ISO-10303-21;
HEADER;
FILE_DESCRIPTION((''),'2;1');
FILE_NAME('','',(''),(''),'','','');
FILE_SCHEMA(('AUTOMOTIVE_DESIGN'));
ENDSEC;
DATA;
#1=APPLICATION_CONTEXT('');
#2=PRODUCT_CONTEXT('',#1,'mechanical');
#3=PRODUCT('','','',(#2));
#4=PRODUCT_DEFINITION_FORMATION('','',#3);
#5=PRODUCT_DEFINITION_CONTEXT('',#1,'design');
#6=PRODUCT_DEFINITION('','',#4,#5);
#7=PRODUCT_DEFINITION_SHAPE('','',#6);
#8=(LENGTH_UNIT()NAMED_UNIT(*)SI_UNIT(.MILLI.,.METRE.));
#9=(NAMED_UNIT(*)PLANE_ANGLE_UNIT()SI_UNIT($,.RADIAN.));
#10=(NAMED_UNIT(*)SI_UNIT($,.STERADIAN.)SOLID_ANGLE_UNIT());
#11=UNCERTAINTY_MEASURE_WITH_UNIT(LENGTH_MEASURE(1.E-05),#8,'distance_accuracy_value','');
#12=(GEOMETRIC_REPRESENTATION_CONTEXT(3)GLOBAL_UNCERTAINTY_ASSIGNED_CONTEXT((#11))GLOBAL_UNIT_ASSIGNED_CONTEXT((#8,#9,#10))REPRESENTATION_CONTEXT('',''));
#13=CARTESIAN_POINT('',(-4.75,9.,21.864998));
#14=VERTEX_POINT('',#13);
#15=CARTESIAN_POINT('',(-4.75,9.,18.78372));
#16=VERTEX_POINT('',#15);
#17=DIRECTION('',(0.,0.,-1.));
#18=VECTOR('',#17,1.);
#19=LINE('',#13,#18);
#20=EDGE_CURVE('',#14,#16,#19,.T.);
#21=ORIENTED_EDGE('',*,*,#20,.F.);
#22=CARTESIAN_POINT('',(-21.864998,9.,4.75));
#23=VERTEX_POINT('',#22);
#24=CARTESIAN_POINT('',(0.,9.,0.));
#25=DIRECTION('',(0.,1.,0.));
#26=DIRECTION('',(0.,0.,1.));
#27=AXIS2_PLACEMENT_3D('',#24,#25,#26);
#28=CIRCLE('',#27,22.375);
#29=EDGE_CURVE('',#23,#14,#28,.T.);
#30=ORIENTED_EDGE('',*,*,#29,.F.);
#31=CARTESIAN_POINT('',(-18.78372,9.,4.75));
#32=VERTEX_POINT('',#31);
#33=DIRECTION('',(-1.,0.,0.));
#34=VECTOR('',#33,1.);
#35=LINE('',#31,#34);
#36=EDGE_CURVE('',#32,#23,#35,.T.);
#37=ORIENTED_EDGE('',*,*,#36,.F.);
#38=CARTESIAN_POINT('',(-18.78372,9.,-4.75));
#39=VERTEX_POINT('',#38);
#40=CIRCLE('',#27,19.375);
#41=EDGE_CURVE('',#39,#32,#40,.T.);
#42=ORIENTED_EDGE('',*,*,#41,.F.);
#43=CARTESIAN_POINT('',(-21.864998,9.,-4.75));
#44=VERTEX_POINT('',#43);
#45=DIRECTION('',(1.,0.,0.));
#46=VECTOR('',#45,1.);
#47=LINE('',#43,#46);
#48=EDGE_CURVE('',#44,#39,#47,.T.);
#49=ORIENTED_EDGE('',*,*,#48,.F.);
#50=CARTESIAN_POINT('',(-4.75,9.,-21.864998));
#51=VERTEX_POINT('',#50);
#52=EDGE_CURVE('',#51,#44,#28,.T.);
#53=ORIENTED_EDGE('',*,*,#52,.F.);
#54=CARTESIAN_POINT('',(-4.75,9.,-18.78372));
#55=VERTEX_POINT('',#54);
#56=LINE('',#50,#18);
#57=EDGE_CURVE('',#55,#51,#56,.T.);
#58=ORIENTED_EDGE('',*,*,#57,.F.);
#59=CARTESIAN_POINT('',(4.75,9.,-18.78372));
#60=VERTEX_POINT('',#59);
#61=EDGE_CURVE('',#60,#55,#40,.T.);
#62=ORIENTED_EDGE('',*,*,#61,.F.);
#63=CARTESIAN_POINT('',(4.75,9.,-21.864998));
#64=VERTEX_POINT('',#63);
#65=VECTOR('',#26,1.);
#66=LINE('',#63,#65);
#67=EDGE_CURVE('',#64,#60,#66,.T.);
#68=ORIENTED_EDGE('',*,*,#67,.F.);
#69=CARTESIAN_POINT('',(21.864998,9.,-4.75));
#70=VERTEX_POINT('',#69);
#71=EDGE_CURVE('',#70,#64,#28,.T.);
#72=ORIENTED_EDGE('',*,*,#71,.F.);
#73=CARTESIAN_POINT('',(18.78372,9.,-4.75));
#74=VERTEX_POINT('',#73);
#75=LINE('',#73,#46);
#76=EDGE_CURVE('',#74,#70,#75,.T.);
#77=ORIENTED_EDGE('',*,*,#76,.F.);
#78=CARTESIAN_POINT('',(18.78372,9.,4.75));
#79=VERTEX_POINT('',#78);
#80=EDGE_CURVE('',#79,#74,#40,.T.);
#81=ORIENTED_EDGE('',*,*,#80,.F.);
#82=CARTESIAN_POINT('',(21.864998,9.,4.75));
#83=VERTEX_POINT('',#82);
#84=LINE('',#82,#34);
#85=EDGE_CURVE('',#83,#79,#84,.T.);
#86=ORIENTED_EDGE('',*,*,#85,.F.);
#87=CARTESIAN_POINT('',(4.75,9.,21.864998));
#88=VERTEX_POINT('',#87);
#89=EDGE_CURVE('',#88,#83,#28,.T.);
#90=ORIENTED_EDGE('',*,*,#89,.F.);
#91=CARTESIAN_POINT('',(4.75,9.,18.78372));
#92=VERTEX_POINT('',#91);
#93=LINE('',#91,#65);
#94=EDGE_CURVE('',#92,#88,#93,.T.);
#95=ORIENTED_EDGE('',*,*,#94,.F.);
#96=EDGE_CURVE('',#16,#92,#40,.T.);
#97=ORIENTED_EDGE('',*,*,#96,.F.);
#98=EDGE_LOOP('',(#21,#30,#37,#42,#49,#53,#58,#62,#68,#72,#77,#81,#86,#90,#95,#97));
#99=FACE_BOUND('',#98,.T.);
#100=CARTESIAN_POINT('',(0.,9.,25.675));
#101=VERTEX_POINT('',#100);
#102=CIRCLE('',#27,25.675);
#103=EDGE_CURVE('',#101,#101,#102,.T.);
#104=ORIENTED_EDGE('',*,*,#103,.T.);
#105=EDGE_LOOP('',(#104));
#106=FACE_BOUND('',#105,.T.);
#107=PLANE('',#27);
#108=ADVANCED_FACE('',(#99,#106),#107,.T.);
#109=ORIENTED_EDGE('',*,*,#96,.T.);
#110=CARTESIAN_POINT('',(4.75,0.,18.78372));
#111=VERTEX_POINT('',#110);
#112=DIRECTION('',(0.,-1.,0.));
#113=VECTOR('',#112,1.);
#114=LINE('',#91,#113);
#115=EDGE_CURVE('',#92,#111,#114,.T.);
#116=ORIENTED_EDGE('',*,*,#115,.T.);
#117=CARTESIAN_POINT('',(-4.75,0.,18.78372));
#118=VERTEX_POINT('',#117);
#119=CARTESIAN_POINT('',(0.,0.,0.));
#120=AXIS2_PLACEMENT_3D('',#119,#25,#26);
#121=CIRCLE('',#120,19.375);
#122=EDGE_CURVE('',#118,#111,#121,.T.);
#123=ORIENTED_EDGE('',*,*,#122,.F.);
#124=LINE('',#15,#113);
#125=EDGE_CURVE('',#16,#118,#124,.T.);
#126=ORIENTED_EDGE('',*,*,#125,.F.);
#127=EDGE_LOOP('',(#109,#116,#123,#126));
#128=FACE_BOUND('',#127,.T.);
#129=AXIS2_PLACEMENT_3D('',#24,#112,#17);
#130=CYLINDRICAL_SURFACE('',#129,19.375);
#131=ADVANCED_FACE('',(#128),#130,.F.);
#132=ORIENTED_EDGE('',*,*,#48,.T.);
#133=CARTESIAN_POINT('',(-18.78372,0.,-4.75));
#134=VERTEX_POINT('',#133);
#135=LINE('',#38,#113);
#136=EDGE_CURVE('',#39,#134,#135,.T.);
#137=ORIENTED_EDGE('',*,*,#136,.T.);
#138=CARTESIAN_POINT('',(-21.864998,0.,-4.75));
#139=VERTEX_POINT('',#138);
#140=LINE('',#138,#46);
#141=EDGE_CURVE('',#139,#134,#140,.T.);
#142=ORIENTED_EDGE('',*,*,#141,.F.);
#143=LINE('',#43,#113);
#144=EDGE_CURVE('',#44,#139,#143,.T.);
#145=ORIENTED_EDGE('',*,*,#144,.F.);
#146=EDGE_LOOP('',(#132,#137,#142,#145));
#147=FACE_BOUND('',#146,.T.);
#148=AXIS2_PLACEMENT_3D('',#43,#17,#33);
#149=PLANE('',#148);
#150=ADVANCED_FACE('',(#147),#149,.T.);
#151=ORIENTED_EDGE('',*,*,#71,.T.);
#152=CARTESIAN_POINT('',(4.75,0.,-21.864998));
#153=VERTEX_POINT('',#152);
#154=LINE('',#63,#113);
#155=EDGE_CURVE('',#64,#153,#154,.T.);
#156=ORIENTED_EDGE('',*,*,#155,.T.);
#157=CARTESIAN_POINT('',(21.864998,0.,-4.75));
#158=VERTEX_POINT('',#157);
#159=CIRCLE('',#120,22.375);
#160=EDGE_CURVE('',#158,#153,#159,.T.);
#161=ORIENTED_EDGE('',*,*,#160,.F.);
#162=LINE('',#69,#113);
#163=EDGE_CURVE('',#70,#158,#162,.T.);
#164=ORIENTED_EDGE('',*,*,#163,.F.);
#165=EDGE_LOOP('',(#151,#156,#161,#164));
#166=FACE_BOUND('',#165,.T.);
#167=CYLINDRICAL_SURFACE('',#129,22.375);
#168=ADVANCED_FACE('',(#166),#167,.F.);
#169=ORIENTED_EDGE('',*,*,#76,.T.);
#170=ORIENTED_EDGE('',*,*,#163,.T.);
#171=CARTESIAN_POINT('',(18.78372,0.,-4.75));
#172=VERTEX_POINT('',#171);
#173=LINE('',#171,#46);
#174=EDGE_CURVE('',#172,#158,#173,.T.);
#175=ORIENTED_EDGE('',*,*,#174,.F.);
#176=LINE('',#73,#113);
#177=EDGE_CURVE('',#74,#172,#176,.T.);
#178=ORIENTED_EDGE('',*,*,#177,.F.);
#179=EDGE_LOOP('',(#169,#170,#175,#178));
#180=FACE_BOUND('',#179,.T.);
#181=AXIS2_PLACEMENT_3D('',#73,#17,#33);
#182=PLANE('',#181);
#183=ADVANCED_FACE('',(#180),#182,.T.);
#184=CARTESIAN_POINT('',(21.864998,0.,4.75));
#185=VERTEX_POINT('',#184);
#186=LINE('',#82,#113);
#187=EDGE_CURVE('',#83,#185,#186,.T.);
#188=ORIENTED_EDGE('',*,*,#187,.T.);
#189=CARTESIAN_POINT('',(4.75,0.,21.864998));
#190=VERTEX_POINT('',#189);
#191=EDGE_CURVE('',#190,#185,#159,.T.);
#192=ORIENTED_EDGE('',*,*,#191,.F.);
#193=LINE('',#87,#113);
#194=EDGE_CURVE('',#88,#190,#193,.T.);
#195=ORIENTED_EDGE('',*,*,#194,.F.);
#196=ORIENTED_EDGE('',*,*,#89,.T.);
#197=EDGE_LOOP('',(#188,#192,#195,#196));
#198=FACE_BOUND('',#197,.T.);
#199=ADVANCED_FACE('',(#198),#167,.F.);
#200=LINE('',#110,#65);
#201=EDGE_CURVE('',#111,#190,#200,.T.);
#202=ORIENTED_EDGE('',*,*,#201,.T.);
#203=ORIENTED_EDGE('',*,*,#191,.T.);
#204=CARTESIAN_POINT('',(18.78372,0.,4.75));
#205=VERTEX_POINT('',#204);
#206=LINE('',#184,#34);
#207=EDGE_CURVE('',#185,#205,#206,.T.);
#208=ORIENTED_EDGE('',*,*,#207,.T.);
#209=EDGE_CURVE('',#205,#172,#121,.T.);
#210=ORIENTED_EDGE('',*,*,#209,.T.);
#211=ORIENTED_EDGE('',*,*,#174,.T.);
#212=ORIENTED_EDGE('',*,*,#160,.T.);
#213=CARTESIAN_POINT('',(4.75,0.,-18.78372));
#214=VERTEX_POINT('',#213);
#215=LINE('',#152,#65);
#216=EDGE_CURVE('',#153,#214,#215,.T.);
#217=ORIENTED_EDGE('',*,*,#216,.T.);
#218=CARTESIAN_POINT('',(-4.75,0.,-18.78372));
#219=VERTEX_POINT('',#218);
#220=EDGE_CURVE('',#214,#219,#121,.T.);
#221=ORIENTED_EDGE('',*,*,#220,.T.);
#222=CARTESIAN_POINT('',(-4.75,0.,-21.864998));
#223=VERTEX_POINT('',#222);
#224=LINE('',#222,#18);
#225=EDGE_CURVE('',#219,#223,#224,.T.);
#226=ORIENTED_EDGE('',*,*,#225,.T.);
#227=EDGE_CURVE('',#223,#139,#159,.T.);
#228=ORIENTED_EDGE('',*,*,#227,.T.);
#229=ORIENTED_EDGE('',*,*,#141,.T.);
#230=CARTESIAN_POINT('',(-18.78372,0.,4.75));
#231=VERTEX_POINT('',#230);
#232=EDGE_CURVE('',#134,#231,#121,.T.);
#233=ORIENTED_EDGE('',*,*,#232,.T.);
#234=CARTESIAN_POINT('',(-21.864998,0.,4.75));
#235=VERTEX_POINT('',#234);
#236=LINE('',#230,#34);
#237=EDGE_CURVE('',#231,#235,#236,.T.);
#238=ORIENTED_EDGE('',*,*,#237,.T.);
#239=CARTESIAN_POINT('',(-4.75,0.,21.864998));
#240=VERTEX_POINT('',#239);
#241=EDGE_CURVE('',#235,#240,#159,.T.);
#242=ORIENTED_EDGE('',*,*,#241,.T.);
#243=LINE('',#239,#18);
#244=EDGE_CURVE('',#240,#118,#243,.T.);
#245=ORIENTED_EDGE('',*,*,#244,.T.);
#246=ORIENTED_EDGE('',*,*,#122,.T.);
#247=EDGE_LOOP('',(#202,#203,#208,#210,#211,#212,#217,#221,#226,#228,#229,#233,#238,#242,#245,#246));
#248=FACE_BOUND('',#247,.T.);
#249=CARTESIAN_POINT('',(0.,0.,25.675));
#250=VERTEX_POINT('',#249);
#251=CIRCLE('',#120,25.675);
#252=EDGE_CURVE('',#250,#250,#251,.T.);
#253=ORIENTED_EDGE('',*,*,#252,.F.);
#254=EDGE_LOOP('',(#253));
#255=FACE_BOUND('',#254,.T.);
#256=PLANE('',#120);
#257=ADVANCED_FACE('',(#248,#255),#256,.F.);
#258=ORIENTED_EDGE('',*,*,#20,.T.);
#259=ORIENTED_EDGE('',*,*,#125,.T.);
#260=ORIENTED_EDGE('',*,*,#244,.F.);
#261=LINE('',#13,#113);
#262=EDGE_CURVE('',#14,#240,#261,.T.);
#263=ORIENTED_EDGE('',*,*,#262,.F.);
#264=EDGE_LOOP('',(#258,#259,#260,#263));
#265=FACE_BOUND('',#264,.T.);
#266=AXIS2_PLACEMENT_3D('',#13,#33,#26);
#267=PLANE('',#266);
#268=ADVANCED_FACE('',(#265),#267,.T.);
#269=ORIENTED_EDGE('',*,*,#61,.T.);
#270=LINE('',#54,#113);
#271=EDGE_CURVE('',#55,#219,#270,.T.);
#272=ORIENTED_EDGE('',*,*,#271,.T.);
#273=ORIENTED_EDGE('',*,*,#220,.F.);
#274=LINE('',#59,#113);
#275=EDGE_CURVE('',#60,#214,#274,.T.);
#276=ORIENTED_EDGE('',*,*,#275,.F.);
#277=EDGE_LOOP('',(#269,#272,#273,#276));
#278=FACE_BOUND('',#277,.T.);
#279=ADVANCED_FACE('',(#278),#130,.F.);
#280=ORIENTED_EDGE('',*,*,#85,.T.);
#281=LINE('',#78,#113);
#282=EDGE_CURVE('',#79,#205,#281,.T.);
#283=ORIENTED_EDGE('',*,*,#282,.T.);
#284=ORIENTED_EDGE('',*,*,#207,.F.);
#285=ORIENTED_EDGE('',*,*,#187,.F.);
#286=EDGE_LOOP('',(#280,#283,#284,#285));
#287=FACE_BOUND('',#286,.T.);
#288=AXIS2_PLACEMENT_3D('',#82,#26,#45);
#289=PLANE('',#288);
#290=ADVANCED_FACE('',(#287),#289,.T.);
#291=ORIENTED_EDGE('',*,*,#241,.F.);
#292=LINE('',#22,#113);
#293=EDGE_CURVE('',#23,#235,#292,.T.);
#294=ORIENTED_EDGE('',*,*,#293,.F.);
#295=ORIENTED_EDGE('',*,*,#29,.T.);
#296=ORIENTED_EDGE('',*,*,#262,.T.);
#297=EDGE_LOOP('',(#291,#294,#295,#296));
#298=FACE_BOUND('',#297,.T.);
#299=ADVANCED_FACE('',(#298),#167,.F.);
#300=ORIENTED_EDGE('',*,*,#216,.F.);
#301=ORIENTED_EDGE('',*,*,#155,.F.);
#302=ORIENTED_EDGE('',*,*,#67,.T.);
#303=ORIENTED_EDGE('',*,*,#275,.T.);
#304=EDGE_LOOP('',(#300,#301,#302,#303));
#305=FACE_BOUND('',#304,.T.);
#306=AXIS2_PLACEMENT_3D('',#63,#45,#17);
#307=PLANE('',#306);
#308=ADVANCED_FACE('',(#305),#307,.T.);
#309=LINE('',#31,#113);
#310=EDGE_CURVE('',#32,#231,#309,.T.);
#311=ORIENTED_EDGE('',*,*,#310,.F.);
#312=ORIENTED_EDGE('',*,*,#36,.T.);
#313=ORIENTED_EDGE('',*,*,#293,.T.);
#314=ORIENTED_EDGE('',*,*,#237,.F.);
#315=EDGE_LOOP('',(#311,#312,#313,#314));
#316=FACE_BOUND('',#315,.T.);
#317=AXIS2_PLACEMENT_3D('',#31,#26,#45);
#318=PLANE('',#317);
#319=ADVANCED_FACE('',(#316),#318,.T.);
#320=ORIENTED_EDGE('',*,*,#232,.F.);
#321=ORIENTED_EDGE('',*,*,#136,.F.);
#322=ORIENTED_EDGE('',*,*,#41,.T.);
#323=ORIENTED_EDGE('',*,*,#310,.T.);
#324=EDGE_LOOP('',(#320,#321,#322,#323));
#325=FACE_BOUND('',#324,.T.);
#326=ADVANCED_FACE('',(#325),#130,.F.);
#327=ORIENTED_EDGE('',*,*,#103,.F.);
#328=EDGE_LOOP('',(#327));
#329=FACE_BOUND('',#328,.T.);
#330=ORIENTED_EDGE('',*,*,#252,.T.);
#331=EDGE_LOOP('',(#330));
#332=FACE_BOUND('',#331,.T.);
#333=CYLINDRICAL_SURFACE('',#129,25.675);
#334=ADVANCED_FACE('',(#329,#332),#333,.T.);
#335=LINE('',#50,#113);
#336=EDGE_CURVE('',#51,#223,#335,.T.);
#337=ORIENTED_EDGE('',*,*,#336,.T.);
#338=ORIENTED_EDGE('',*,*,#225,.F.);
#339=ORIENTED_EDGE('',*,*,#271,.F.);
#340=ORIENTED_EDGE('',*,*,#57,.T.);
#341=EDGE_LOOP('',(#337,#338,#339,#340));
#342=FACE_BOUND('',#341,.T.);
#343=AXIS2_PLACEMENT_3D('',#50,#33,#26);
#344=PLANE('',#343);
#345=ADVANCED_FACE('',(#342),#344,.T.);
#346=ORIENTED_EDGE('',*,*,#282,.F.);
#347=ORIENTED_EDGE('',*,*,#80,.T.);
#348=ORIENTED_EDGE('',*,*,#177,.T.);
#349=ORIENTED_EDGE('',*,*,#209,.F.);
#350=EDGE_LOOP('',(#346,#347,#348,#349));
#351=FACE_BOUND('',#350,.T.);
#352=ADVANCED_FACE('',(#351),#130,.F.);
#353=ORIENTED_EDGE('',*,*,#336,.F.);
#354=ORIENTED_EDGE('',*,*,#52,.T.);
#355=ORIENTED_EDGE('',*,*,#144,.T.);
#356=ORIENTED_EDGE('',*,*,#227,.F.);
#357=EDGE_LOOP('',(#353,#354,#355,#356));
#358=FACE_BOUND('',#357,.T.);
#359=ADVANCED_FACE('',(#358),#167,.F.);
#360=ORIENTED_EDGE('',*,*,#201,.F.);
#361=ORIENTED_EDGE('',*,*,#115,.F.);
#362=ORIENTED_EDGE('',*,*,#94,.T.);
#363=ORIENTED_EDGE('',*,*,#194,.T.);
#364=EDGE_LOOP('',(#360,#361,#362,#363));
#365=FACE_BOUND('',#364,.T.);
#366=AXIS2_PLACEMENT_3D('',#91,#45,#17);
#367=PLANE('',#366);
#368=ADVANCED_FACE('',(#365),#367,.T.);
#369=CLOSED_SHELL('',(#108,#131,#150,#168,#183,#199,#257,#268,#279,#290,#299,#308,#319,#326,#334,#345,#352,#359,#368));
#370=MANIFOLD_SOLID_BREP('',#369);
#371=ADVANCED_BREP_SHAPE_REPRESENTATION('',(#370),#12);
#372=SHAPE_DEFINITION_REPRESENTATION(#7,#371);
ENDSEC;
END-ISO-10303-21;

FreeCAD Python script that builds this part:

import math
import FreeCAD as App
import Part
import Sketcher
from FreeCAD import Vector
Q = App.Units.Quantity

doc = App.newDocument("Part")
body = doc.addObject("PartDesign::Body", "Body")

# Sketch on XZ plane
sketch1 = body.newObject("Sketcher::SketchObject", "Sketch")
sketch1.AttachmentSupport = (doc.getObject("XZ_Plane"), [""])
sketch1.MapMode = "FlatFace"
sketch1.addGeometry(Part.Circle(Vector(0, 0, 0), Vector(0, 0, 1), 25.675), False)
sketch1.addGeometry(Part.ArcOfCircle(Part.Circle(Vector(0, 0, 0), Vector(0, 0, 1), 22.375), math.radians(-167.743385), math.radians(-102.256615)), False)
sketch1.addGeometry(Part.LineSegment(Vector(-4.75, -21.864998, 0), Vector(-4.75, -18.78372, 0)), False)
sketch1.addGeometry(Part.ArcOfCircle(Part.Circle(Vector(0, 0, 0), Vector(0, 0, 1), 19.375), math.radians(-104.191366), math.radians(-75.808634)), False)
sketch1.addGeometry(Part.LineSegment(Vector(4.75, -18.78372, 0), Vector(4.75, -21.864998, 0)), False)
sketch1.addGeometry(Part.ArcOfCircle(Part.Circle(Vector(0, 0, 0), Vector(0, 0, 1), 22.375), math.radians(-77.743385), math.radians(-12.256615)), False)
sketch1.addGeometry(Part.LineSegment(Vector(21.864998, -4.75, 0), Vector(18.78372, -4.75, 0)), False)
sketch1.addGeometry(Part.ArcOfCircle(Part.Circle(Vector(0, 0, 0), Vector(0, 0, 1), 19.375), math.radians(-14.191366), math.radians(14.191366)), False)
sketch1.addGeometry(Part.LineSegment(Vector(18.78372, 4.75, 0), Vector(21.864998, 4.75, 0)), False)
sketch1.addGeometry(Part.ArcOfCircle(Part.Circle(Vector(0, 0, 0), Vector(0, 0, 1), 22.375), math.radians(12.256615), math.radians(77.743385)), False)
sketch1.addGeometry(Part.LineSegment(Vector(4.75, 21.864998, 0), Vector(4.75, 18.78372, 0)), False)
sketch1.addGeometry(Part.ArcOfCircle(Part.Circle(Vector(0, 0, 0), Vector(0, 0, 1), 19.375), math.radians(75.808634), math.radians(104.191366)), False)
sketch1.addGeometry(Part.LineSegment(Vector(-4.75, 18.78372, 0), Vector(-4.75, 21.864998, 0)), False)
sketch1.addGeometry(Part.ArcOfCircle(Part.Circle(Vector(0, 0, 0), Vector(0, 0, 1), 22.375), math.radians(102.256615), math.radians(167.743385)), False)
sketch1.addGeometry(Part.LineSegment(Vector(-21.864998, 4.75, 0), Vector(-18.78372, 4.75, 0)), False)
sketch1.addGeometry(Part.ArcOfCircle(Part.Circle(Vector(0, 0, 0), Vector(0, 0, 1), 19.375), math.radians(165.808634), math.radians(194.191366)), False)
sketch1.addGeometry(Part.LineSegment(Vector(-18.78372, -4.75, 0), Vector(-21.864998, -4.75, 0)), False)
sketch1.addConstraint(Sketcher.Constraint("Coincident", 1, 2, 2, 1))
sketch1.addConstraint(Sketcher.Constraint("Coincident", 2, 2, 3, 1))
sketch1.addConstraint(Sketcher.Constraint("Coincident", 3, 2, 4, 1))
sketch1.addConstraint(Sketcher.Constraint("Coincident", 4, 2, 5, 1))
sketch1.addConstraint(Sketcher.Constraint("Coincident", 5, 2, 6, 1))
sketch1.addConstraint(Sketcher.Constraint("Coincident", 6, 2, 7, 1))
sketch1.addConstraint(Sketcher.Constraint("Coincident", 7, 2, 8, 1))
sketch1.addConstraint(Sketcher.Constraint("Coincident", 8, 2, 9, 1))
sketch1.addConstraint(Sketcher.Constraint("Coincident", 9, 2, 10, 1))
sketch1.addConstraint(Sketcher.Constraint("Coincident", 10, 2, 11, 1))
sketch1.addConstraint(Sketcher.Constraint("Coincident", 11, 2, 12, 1))
sketch1.addConstraint(Sketcher.Constraint("Coincident", 12, 2, 13, 1))
sketch1.addConstraint(Sketcher.Constraint("Coincident", 13, 2, 14, 1))
sketch1.addConstraint(Sketcher.Constraint("Coincident", 14, 2, 15, 1))
sketch1.addConstraint(Sketcher.Constraint("Coincident", 15, 2, 16, 1))
sketch1.addConstraint(Sketcher.Constraint("Coincident", 16, 2, 1, 1))
sketch1.addConstraint(Sketcher.Constraint("Vertical", 2))
sketch1.addConstraint(Sketcher.Constraint("Vertical", 4))
sketch1.addConstraint(Sketcher.Constraint("Horizontal", 6))
sketch1.addConstraint(Sketcher.Constraint("Horizontal", 8))
sketch1.addConstraint(Sketcher.Constraint("Vertical", 10))
sketch1.addConstraint(Sketcher.Constraint("Vertical", 12))
sketch1.addConstraint(Sketcher.Constraint("Horizontal", 14))
sketch1.addConstraint(Sketcher.Constraint("Horizontal", 16))
sketch1.addConstraint(Sketcher.Constraint("Coincident", 0, 3, -1, 1))
sketch1.addConstraint(Sketcher.Constraint("Coincident", 1, 3, -1, 1))
sketch1.addConstraint(Sketcher.Constraint("Coincident", 3, 3, -1, 1))
sketch1.addConstraint(Sketcher.Constraint("Coincident", 5, 3, -1, 1))
sketch1.addConstraint(Sketcher.Constraint("Coincident", 7, 3, -1, 1))
sketch1.addConstraint(Sketcher.Constraint("Coincident", 9, 3, -1, 1))
sketch1.addConstraint(Sketcher.Constraint("Coincident", 11, 3, -1, 1))
sketch1.addConstraint(Sketcher.Constraint("Coincident", 13, 3, -1, 1))
sketch1.addConstraint(Sketcher.Constraint("Coincident", 15, 3, -1, 1))
sketch1.addConstraint(Sketcher.Constraint("Equal", 1, 5))
sketch1.addConstraint(Sketcher.Constraint("Equal", 3, 7))
sketch1.addConstraint(Sketcher.Constraint("Equal", 5, 9))
sketch1.addConstraint(Sketcher.Constraint("Equal", 7, 11))
sketch1.addConstraint(Sketcher.Constraint("Equal", 9, 13))
sketch1.addConstraint(Sketcher.Constraint("Equal", 11, 15))
sketch1.addConstraint(Sketcher.Constraint("Horizontal", 2, 2, 3, 2))
sketch1.addConstraint(Sketcher.Constraint("Horizontal", 10, 2, 11, 2))
sketch1.addConstraint(Sketcher.Constraint("Horizontal", 8, 2, 13, 2))
sketch1.addConstraint(Sketcher.Constraint("Horizontal", 6, 2, 15, 2))
sketch1.addConstraint(Sketcher.Constraint("Vertical", 6, 2, 7, 2))
sketch1.addConstraint(Sketcher.Constraint("Vertical", 4, 2, 9, 2))
sketch1.addConstraint(Sketcher.Constraint("Equal", 16, 2))
sketch1.addConstraint(Sketcher.Constraint("Diameter", 0, Q("51.35 mm")))
sketch1.addConstraint(Sketcher.Constraint("Radius", 1, Q("22.375 mm")))
sketch1.addConstraint(Sketcher.Constraint("Radius", 3, Q("19.375 mm")))
sketch1.addConstraint(Sketcher.Constraint("DistanceX", 2, 2, 3, 2, Q("9.5 mm")))
pad1 = body.newObject("PartDesign::Pad", "Pad")
pad1.Profile = sketch1
pad1.Length = 9
pad1.Reversed = True

doc.recompute()
